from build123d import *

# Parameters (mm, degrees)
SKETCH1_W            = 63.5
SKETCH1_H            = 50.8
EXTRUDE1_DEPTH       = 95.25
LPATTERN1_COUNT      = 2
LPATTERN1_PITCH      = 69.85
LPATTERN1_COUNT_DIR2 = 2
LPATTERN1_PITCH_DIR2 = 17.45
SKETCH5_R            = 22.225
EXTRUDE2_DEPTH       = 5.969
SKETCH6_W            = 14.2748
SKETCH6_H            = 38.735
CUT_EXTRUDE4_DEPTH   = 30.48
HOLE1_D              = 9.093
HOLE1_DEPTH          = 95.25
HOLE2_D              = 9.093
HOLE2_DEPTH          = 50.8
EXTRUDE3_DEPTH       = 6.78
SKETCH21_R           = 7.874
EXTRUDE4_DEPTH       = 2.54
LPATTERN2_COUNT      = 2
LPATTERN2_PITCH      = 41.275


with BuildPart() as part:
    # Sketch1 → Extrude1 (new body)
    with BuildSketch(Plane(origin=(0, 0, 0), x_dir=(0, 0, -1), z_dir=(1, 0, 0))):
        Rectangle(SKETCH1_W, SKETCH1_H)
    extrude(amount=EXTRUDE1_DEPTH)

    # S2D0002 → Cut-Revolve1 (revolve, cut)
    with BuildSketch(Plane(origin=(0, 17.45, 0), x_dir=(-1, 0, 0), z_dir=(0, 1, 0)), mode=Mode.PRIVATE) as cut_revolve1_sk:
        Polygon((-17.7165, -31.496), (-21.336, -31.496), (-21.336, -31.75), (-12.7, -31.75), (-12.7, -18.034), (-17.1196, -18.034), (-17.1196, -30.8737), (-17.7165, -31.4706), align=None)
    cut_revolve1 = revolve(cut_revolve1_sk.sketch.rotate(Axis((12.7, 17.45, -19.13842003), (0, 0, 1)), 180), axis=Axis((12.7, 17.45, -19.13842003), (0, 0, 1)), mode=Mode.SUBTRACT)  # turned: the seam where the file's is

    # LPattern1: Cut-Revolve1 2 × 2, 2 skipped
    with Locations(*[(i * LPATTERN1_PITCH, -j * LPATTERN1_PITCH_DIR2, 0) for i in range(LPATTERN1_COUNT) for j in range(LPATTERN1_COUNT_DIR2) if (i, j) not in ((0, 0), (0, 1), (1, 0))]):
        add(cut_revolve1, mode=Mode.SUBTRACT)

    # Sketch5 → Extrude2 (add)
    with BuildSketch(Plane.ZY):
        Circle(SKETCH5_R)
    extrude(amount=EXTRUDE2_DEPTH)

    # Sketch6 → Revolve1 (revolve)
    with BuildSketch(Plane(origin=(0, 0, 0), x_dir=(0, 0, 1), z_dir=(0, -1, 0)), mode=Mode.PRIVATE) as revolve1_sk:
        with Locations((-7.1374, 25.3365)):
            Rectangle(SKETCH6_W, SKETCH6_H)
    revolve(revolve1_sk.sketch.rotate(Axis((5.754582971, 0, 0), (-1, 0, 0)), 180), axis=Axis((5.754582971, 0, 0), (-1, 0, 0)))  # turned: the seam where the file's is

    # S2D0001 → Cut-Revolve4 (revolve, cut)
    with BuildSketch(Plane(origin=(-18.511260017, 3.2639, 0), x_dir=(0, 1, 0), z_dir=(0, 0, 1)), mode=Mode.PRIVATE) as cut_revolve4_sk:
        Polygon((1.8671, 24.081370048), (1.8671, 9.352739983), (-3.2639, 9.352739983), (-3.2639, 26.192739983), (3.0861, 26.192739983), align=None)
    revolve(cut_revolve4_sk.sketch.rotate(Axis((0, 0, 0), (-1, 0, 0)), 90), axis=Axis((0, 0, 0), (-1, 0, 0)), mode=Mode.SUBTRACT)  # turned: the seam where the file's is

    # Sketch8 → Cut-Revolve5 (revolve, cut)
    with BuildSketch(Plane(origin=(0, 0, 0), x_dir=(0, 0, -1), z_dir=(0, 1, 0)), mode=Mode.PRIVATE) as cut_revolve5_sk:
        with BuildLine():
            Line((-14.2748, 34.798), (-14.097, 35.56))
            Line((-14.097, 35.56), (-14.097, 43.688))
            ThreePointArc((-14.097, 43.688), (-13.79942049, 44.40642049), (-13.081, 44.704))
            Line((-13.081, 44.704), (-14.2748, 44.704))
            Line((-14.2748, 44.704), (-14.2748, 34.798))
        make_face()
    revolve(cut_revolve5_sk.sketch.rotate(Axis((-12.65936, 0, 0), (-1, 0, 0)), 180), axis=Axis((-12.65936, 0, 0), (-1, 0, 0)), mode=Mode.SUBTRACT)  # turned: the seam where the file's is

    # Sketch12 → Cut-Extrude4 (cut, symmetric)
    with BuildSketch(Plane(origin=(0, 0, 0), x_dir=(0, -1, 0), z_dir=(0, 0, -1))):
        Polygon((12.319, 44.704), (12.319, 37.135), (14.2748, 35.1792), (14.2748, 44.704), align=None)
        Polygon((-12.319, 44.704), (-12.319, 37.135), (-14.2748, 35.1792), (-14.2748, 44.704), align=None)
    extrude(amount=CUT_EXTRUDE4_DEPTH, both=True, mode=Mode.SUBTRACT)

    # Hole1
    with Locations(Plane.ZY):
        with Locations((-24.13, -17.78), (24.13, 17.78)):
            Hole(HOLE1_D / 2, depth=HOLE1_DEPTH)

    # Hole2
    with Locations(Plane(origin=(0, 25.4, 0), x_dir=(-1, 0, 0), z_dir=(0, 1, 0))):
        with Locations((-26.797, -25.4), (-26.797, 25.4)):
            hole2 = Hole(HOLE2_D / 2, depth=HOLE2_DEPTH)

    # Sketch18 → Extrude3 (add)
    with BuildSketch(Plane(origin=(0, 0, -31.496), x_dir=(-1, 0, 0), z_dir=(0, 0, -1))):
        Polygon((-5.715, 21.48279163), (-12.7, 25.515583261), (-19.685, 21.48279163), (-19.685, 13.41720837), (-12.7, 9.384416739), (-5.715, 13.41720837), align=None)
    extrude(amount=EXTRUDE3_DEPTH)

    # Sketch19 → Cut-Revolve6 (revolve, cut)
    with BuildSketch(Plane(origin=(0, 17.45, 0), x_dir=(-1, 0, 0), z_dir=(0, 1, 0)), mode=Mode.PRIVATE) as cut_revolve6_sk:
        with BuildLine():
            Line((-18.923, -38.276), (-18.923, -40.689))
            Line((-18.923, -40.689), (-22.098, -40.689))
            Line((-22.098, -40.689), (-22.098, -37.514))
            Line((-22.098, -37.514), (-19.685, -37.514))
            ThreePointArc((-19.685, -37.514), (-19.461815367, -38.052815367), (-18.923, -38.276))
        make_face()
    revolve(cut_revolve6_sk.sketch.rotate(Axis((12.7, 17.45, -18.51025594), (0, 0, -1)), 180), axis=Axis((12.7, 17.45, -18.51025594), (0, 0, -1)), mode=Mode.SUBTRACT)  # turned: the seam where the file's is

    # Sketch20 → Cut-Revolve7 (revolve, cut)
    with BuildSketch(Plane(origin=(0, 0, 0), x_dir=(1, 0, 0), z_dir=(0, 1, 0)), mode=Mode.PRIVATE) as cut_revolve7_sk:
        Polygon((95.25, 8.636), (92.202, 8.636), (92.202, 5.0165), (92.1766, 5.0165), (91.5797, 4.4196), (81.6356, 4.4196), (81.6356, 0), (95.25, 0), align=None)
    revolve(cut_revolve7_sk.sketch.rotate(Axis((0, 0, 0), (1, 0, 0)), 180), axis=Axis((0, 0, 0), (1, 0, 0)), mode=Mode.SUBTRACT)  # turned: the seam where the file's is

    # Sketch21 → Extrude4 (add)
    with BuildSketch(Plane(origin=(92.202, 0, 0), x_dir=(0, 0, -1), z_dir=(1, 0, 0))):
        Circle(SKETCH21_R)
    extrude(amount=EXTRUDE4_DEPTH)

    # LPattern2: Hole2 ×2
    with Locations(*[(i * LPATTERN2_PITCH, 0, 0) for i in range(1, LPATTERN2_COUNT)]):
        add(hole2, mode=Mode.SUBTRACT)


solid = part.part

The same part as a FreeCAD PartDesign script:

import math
import FreeCAD as App
import Part
import Sketcher

V = App.Vector
Q = App.Units.Quantity


def add_polygon(sketch, points):
    """Adds a closed chain of lines whose ends are joined by coincident constraints."""
    first, n = sketch.GeometryCount, len(points)
    for a, b in zip(points, points[1:] + points[:1]):
        sketch.addGeometry(Part.LineSegment(App.Vector(*a, 0), App.Vector(*b, 0)), False)
    for i in range(n):
        sketch.addConstraint(Sketcher.Constraint("Coincident", first + i, 2, first + (i + 1) % n, 1))

doc = App.newDocument("Part")
body = doc.addObject("PartDesign::Body", "Body")

sketch1 = body.newObject("Sketcher::SketchObject", "Sketch")
sketch1.AttachmentSupport = (doc.getObject("YZ_Plane"), [""])
sketch1.MapMode = "FlatFace"
add_polygon(sketch1, [(25, 32), (-25, 32), (-25, -32), (25, -32)])
sketch1.addConstraint([
    Sketcher.Constraint("Horizontal", 0),
    Sketcher.Constraint("Vertical", 1),
    Sketcher.Constraint("Horizontal", 2),
    Sketcher.Constraint("Vertical", 3),
    Sketcher.Constraint("Symmetric", 0, 2, 2, 2, -1, 1),
    Sketcher.Constraint("DistanceX", 0, 2, 0, 1, Q("2 in")),
    Sketcher.Constraint("DistanceY", 1, 2, 1, 1, Q("2.5 in")),
])
pad1 = body.newObject("PartDesign::Pad", "Pad")
pad1.Profile = sketch1
pad1.Length = Q("3.75 in")

sketch2 = body.newObject("Sketcher::SketchObject", "Sketch001")
sketch2.AttachmentSupport = (doc.getObject("XZ_Plane"), [""])
sketch2.MapMode = "FlatFace"
sketch2.AttachmentOffset = App.Placement(V(0, 0, -17.45), App.Rotation())
add_polygon(sketch2, [(17.716, -31.496), (21.336, -31.496), (21.336, -31.75), (12.7, -31.75), (12.7, -18.034), (17.12, -18.034), (17.12, -30.874), (17.716, -31.471)])
sketch2.addGeometry(Part.LineSegment(V(12.7, -31.75, 0), V(12.7, -18.034, 0)), True)
sketch2.addConstraint([
    Sketcher.Constraint("Horizontal", 0),
    Sketcher.Constraint("Vertical", 1),
    Sketcher.Constraint("Horizontal", 2),
    Sketcher.Constraint("Vertical", 3),
    Sketcher.Constraint("Horizontal", 4),
    Sketcher.Constraint("Vertical", 5),
    Sketcher.Constraint("Vertical", 7),
    Sketcher.Constraint("Vertical", 8),
    Sketcher.Constraint("Coincident", 8, 1, 2, 2),
    Sketcher.Constraint("Horizontal", 4, 2, 8, 2),
    Sketcher.Constraint("Angle", 6, Q("-45 deg")),
    Sketcher.Constraint("DistanceX", 2, 2, 2, 1, Q("0.34 in")),
    Sketcher.Constraint("DistanceY", 1, 2, 1, 1, Q("0.01 in")),
    Sketcher.Constraint("DistanceY", 3, 1, 3, 2, Q("0.54 in")),
    Sketcher.Constraint("DistanceX", -1, 1, 2, 2, Q("0.5 in")),
    Sketcher.Constraint("DistanceX", 4, 1, 4, 2, Q("0.174 in")),
    Sketcher.Constraint("DistanceY", 7, 2, 7, 1, Q("0.001 in")),
    Sketcher.Constraint("DistanceY", 0, 2, -1, 1, Q("1.24 in")),
    Sketcher.Constraint("DistanceX", 0, 1, 0, 2, Q("0.1425 in")),
])
groove = body.newObject("PartDesign::Groove", "Groove")
groove.Profile = sketch2
groove.ReferenceAxis = (sketch2, ["Axis0"])
groove.Angle = 360
doc.recompute()

datumline = body.newObject("PartDesign::Line", "DatumLine")
datumline.Placement = App.Placement(V(0, 0, 0), App.Rotation(V(0, 0, 1), V(0.970183338, -0.242372215, 0)))
linearpattern = body.newObject("PartDesign::LinearPattern", "LinearPattern")
linearpattern.Originals = [groove]
linearpattern.Direction = (datumline, [""])
linearpattern.Mode = "offset"
linearpattern.Offset = 71.996701
linearpattern.Occurrences = 2
body.Tip = linearpattern

sketch3 = body.newObject("Sketcher::SketchObject", "Sketch002")
sketch3.AttachmentSupport = (doc.getObject("YZ_Plane"), [""])
sketch3.MapMode = "FlatFace"
sketch3.addGeometry(Part.Circle(V(0, 0, 0), V(0, 0, 1), 22), False)
sketch3.addConstraint([
    Sketcher.Constraint("Coincident", 0, 3, -1, 1),
    Sketcher.Constraint("Diameter", 0, Q("1.75 in")),
])
pad2 = body.newObject("PartDesign::Pad", "Pad001")
pad2.Profile = sketch3
pad2.Length = Q("0.235 in")
pad2.Reversed = True

sketch4 = body.newObject("Sketcher::SketchObject", "Sketch003")
sketch4.AttachmentSupport = (doc.getObject("XZ_Plane"), [""])
sketch4.MapMode = "FlatFace"
add_polygon(sketch4, [(-45, -14), (-6, -14), (-6, 0), (-45, 0)])
sketch4.addConstraint([
    Sketcher.Constraint("Horizontal", 0),
    Sketcher.Constraint("Vertical", 1),
    Sketcher.Constraint("Horizontal", 2),
    Sketcher.Constraint("Vertical", 3),
    Sketcher.Constraint("PointOnObject", 1, 2, -1),
    Sketcher.Constraint("DistanceX", 0, 1, 0, 2, Q("1.525 in")),
    Sketcher.Constraint("DistanceY", 1, 1, 1, 2, Q("0.562 in")),
    Sketcher.Constraint("DistanceX", 2, 2, -1, 1, Q("1.76 in")),
])
revolution = body.newObject("PartDesign::Revolution", "Revolution")
revolution.Profile = sketch4
revolution.ReferenceAxis = (sketch4, ["H_Axis"])
revolution.Angle = 360

sketch5 = body.newObject("Sketcher::SketchObject", "Sketch004")
sketch5.AttachmentSupport = (doc.getObject("XY_Plane"), [""])
sketch5.MapMode = "FlatFace"
add_polygon(sketch5, [(-27.9, 5.1), (-42.6, 5.1), (-44.7, 6.3), (-44.7, 0), (-27.9, 0)])
sketch5.addConstraint([
    Sketcher.Constraint("Horizontal", 0),
    Sketcher.Constraint("Vertical", 2),
    Sketcher.Constraint("Horizontal", 3),
    Sketcher.Constraint("Vertical", 4),
    Sketcher.Constraint("PointOnObject", 2, 2, -1),
    Sketcher.Constraint("Angle", 1, Q("150 deg")),
    Sketcher.Constraint("DistanceY", 2, 2, 2, 1, Q("0.25 in")),
    Sketcher.Constraint("DistanceX", 1, 2, -1, 1, Q("1.76 in")),
    Sketcher.Constraint("DistanceX", 3, 1, 3, 2, 16.84),
    Sketcher.Constraint("DistanceY", 4, 1, 4, 2, 5.131),
])
groove2 = body.newObject("PartDesign::Groove", "Groove001")
groove2.Profile = sketch5
groove2.ReferenceAxis = (sketch5, ["H_Axis"])
groove2.Angle = 360

sketch6 = body.newObject("Sketcher::SketchObject", "Sketch005")
sketch6.AttachmentSupport = (doc.getObject("XZ_Plane"), [""])
sketch6.MapMode = "FlatFace"
sketch6.addGeometry([
    Part.LineSegment(V(-34.8, 14.3, 0), V(-35.6, 14.1, 0)),
    Part.LineSegment(V(-35.6, 14.1, 0), V(-43.7, 14.1, 0)),
    Part.ArcOfCircle(Part.Circle(V(-43.7, 13.1, 0), V(0, 0, 1), 1), math.radians(90), math.radians(180)),
    Part.LineSegment(V(-44.7, 13.1, 0), V(-44.7, 14.3, 0)),
    Part.LineSegment(V(-44.7, 14.3, 0), V(-34.8, 14.3, 0)),
], False)
sketch6.addConstraint([
    Sketcher.Constraint("Coincident", 0, 2, 1, 1),
    Sketcher.Constraint("Tangent", 1, 2, 2, 1),
    Sketcher.Constraint("Tangent", 2, 2, 3, 1),
    Sketcher.Constraint("Coincident", 3, 2, 4, 1),
    Sketcher.Constraint("Coincident", 4, 2, 0, 1),
    Sketcher.Constraint("Horizontal", 1),
    Sketcher.Constraint("Vertical", 3),
    Sketcher.Constraint("Horizontal", 4),
    Sketcher.Constraint("Radius", 2, Q("0.04 in")),
    Sketcher.Constraint("DistanceX", 1, 2, 1, 1, Q("0.32 in")),
    Sketcher.Constraint("DistanceX", 4, 1, 4, 2, Q("0.39 in")),
    Sketcher.Constraint("DistanceX", 0, 2, -1, 1, Q("1.4 in")),
    Sketcher.Constraint("DistanceY", 3, 1, 3, 2, Q("0.047 in")),
    Sketcher.Constraint("DistanceY", -1, 1, 2, 3, Q("0.515 in")),
])
groove3 = body.newObject("PartDesign::Groove", "Groove002")
groove3.Profile = sketch6
groove3.ReferenceAxis = (sketch6, ["H_Axis"])
groove3.Angle = 360

sketch7 = body.newObject("Sketcher::SketchObject", "Sketch006")
sketch7.AttachmentSupport = (doc.getObject("XY_Plane"), [""])
sketch7.MapMode = "FlatFace"
add_polygon(sketch7, [(-44.7, -12.3), (-37.1, -12.3), (-35.2, -14.3), (-44.7, -14.3)])
add_polygon(sketch7, [(-37.1, 12.3), (-44.7, 12.3), (-44.7, 14.3), (-35.2, 14.3)])
sketch7.addConstraint([
    Sketcher.Constraint("Horizontal", 0),
    Sketcher.Constraint("Horizontal", 2),
    Sketcher.Constraint("Vertical", 3),
    Sketcher.Constraint("Horizontal", 4),
    Sketcher.Constraint("Vertical", 5),
    Sketcher.Constraint("Horizontal", 6),
    Sketcher.Constraint("Symmetric", 3, 2, 4, 2, -1),
    Sketcher.Constraint("Symmetric", 1, 2, 6, 2, -1),
    Sketcher.Constraint("Perpendicular", 1, 7),
    Sketcher.Constraint("Vertical", 0, 2, 7, 2),
    Sketcher.Constraint("DistanceY", 3, 1, 3, 2, Q("0.077 in")),
    Sketcher.Constraint("DistanceX", 2, 2, -1, 1, Q("1.76 in")),
    Sketcher.Constraint("DistanceY", 3, 2, 4, 2, Q("0.97 in")),
    Sketcher.Constraint("DistanceX", 0, 1, 0, 2, 7.569),
])
pocket1 = body.newObject("PartDesign::Pocket", "Pocket")
pocket1.Profile = sketch7
pocket1.Length = Q("2.4 in")
pocket1.Midplane = True

sketch8 = body.newObject("Sketcher::SketchObject", "Sketch007")
sketch8.AttachmentSupport = (doc.getObject("YZ_Plane"), [""])
sketch8.MapMode = "FlatFace"
sketch8.addGeometry([
    Part.Circle(V(-17.8, -24.1, 0), V(0, 0, 1), 4.5),
    Part.Circle(V(17.8, 24.1, 0), V(0, 0, 1), 4.5),
], False)
sketch8.addConstraint([
    Sketcher.Constraint("Equal", 0, 1),
    Sketcher.Constraint("Symmetric", 0, 3, 1, 3, -1, 1),
    Sketcher.Constraint("DistanceX", 0, 3, -1, 1, Q("0.7 in")),
    Sketcher.Constraint("DistanceY", 0, 3, 1, 3, Q("1.9 in")),
    Sketcher.Constraint("Diameter", 0, 9.093),
])
doc.recompute()
hole = body.newObject("PartDesign::Hole", "Hole")
hole.Profile = sketch8
hole.ThreadType = "None"
hole.Diameter = 9.093
hole.DepthType = "Dimension"
hole.Depth = Q("3.75 in")
hole.DrillPoint = "Flat"
hole.Reversed = True

sketch9 = body.newObject("Sketcher::SketchObject", "Sketch008")
sketch9.AttachmentSupport = (doc.getObject("XZ_Plane"), [""])
sketch9.MapMode = "FlatFace"
sketch9.AttachmentOffset = App.Placement(V(0, 0, -1 * 25.4), App.Rotation())
sketch9.addGeometry([
    Part.Circle(V(26.8, -25.4, 0), V(0, 0, 1), 4.5),
    Part.Circle(V(26.8, 25.4, 0), V(0, 0, 1), 4.5),
], False)
sketch9.addConstraint([
    Sketcher.Constraint("Equal", 0, 1),
    Sketcher.Constraint("Symmetric", 0, 3, 1, 3, -1),
    Sketcher.Constraint("DistanceY", 0, 3, -1, 1, Q("1 in")),
    Sketcher.Constraint("Diameter", 0, 9.093),
    Sketcher.Constraint("DistanceX", -1, 1, 0, 3, Q("1.055 in")),
])
doc.recompute()
hole2 = body.newObject("PartDesign::Hole", "Hole001")
hole2.Profile = sketch9
hole2.ThreadType = "None"
hole2.Diameter = 9.093
hole2.DepthType = "Dimension"
hole2.Depth = Q("2 in")
hole2.DrillPoint = "Flat"
hole2.Reversed = True

sketch10 = body.newObject("Sketcher::SketchObject", "Sketch009")
sketch10.AttachmentSupport = (doc.getObject("XY_Plane"), [""])
sketch10.MapMode = "FlatFace"
sketch10.AttachmentOffset = App.Placement(V(0, 0, -1.24 * 25.4), App.Rotation())
add_polygon(sketch10, [(6, 21), (13, 26), (20, 21), (20, 13), (13, 9), (6, 13)])
sketch10.addConstraint([
    Sketcher.Constraint("Vertical", 2),
    Sketcher.Constraint("Vertical", 5),
    Sketcher.Constraint("Parallel", 0, 3),
    Sketcher.Constraint("Parallel", 1, 4),
    Sketcher.Constraint("Horizontal", 2, 2, 4, 2),
    Sketcher.Constraint("Horizontal", 1, 2, 5, 2),
    Sketcher.Constraint("Vertical", 0, 2, 3, 2),
    Sketcher.Constraint("Angle", 0, Q("30 deg")),
    Sketcher.Constraint("DistanceX", -1, 1, 0, 2, Q("0.5 in")),
    Sketcher.Constraint("DistanceX", 4, 2, 2, 2, Q("0.55 in")),
    Sketcher.Constraint("DistanceY", 2, 2, 2, 1, 8.065583),
    Sketcher.Constraint("DistanceY", -1, 1, 1, 2, 21.482792),
])
pad3 = body.newObject("PartDesign::Pad", "Pad002")
pad3.Profile = sketch10
pad3.Length = 6.78
pad3.Reversed = True

sketch11 = body.newObject("Sketcher::SketchObject", "Sketch010")
sketch11.AttachmentSupport = (doc.getObject("XZ_Plane"), [""])
sketch11.MapMode = "FlatFace"
sketch11.AttachmentOffset = App.Placement(V(0, 0, -17.45), App.Rotation())
sketch11.addGeometry([
    Part.LineSegment(V(18.9, -40.7, 0), V(18.9, -38.3, 0)),
    Part.ArcOfCircle(Part.Circle(V(18.9, -37.5, 0), V(0, 0, 1), 0.8), math.radians(-90), math.radians(0)),
    Part.LineSegment(V(19.7, -37.5, 0), V(22.1, -37.5, 0)),
    Part.LineSegment(V(22.1, -37.5, 0), V(22.1, -40.7, 0)),
    Part.LineSegment(V(22.1, -40.7, 0), V(18.9, -40.7, 0)),
], False)
sketch11.addGeometry(Part.LineSegment(V(12.7, -37.5, 0), V(12.7, -40.7, 0)), True)
sketch11.addConstraint([
    Sketcher.Constraint("Coincident", 0, 2, 1, 1),
    Sketcher.Constraint("Coincident", 1, 2, 2, 1),
    Sketcher.Constraint("Coincident", 2, 2, 3, 1),
    Sketcher.Constraint("Coincident", 3, 2, 4, 1),
    Sketcher.Constraint("Coincident", 4, 2, 0, 1),
    Sketcher.Constraint("Vertical", 0),
    Sketcher.Constraint("Horizontal", 2),
    Sketcher.Constraint("Vertical", 3),
    Sketcher.Constraint("Horizontal", 4),
    Sketcher.Constraint("Vertical", 5),
    Sketcher.Constraint("Horizontal", 2, 2, 5, 1),
    Sketcher.Constraint("Horizontal", 4, 2, 5, 2),
    Sketcher.Constraint("Vertical", 1, 3, 0, 2),
    Sketcher.Constraint("Equal", 2, 0),
    Sketcher.Constraint("Equal", 4, 3),
    Sketcher.Constraint("Radius", 1, Q("0.03 in")),
    Sketcher.Constraint("DistanceX", -1, 1, 5, 1, Q("0.5 in")),
    Sketcher.Constraint("DistanceX", 2, 1, 2, 2, Q("0.095 in")),
    Sketcher.Constraint("DistanceX", -1, 1, 2, 2, Q("0.87 in")),
    Sketcher.Constraint("DistanceY", 1, 3, -1, 1, 37.514),
])
groove4 = body.newObject("PartDesign::Groove", "Groove003")
groove4.Profile = sketch11
groove4.ReferenceAxis = (sketch11, ["Axis0"])
groove4.Angle = 360

sketch12 = body.newObject("Sketcher::SketchObject", "Sketch011")
sketch12.AttachmentSupport = (doc.getObject("XZ_Plane"), [""])
sketch12.MapMode = "FlatFace"
add_polygon(sketch12, [(95.25, -8.636), (92.202, -8.636), (92.202, -5.016), (92.177, -5.016), (91.58, -4.42), (81.636, -4.42), (81.636, 0), (95.25, 0)])
sketch12.addConstraint([
    Sketcher.Constraint("Horizontal", 0),
    Sketcher.Constraint("Vertical", 1),
    Sketcher.Constraint("Horizontal", 2),
    Sketcher.Constraint("Horizontal", 4),
    Sketcher.Constraint("Vertical", 5),
    Sketcher.Constraint("Horizontal", 6),
    Sketcher.Constraint("Vertical", 7),
    Sketcher.Constraint("PointOnObject", 5, 2, -1),
    Sketcher.Constraint("Angle", 3, Q("135 deg")),
    Sketcher.Constraint("DistanceX", 0, 2, 0, 1, Q("0.12 in")),
    Sketcher.Constraint("DistanceY", 7, 2, 7, 1, Q("0.34 in")),
    Sketcher.Constraint("DistanceX", 2, 2, 2, 1, Q("0.001 in")),
    Sketcher.Constraint("DistanceX", 6, 1, 6, 2, Q("0.536 in")),
    Sketcher.Constraint("DistanceY", 5, 1, 5, 2, Q("0.174 in")),
    Sketcher.Constraint("DistanceX", -1, 1, 0, 2, Q("3.63 in")),
    Sketcher.Constraint("DistanceX", 4, 2, 4, 1, Q("0.3915 in")),
])
groove5 = body.newObject("PartDesign::Groove", "Groove004")
groove5.Profile = sketch12
groove5.ReferenceAxis = (sketch12, ["H_Axis"])
groove5.Angle = 360

sketch13 = body.newObject("Sketcher::SketchObject", "Sketch012")
sketch13.AttachmentSupport = (doc.getObject("YZ_Plane"), [""])
sketch13.MapMode = "FlatFace"
sketch13.AttachmentOffset = App.Placement(V(0, 0, 3.63 * 25.4), App.Rotation())
sketch13.addGeometry(Part.Circle(V(0, 0, 0), V(0, 0, 1), 8), False)
sketch13.addConstraint([
    Sketcher.Constraint("Coincident", 0, 3, -1, 1),
    Sketcher.Constraint("Diameter", 0, Q("0.62 in")),
])
pad4 = body.newObject("PartDesign::Pad", "Pad003")
pad4.Profile = sketch13
pad4.Length = Q("0.1 in")
doc.recompute()

linearpattern2 = body.newObject("PartDesign::LinearPattern", "LinearPattern001")
linearpattern2.Originals = [hole2]
linearpattern2.Direction = (doc.getObject("X_Axis"), [""])
linearpattern2.Mode = "offset"
linearpattern2.Offset = Q("1.625 in")
linearpattern2.Occurrences = 2
body.Tip = linearpattern2

doc.recompute()
